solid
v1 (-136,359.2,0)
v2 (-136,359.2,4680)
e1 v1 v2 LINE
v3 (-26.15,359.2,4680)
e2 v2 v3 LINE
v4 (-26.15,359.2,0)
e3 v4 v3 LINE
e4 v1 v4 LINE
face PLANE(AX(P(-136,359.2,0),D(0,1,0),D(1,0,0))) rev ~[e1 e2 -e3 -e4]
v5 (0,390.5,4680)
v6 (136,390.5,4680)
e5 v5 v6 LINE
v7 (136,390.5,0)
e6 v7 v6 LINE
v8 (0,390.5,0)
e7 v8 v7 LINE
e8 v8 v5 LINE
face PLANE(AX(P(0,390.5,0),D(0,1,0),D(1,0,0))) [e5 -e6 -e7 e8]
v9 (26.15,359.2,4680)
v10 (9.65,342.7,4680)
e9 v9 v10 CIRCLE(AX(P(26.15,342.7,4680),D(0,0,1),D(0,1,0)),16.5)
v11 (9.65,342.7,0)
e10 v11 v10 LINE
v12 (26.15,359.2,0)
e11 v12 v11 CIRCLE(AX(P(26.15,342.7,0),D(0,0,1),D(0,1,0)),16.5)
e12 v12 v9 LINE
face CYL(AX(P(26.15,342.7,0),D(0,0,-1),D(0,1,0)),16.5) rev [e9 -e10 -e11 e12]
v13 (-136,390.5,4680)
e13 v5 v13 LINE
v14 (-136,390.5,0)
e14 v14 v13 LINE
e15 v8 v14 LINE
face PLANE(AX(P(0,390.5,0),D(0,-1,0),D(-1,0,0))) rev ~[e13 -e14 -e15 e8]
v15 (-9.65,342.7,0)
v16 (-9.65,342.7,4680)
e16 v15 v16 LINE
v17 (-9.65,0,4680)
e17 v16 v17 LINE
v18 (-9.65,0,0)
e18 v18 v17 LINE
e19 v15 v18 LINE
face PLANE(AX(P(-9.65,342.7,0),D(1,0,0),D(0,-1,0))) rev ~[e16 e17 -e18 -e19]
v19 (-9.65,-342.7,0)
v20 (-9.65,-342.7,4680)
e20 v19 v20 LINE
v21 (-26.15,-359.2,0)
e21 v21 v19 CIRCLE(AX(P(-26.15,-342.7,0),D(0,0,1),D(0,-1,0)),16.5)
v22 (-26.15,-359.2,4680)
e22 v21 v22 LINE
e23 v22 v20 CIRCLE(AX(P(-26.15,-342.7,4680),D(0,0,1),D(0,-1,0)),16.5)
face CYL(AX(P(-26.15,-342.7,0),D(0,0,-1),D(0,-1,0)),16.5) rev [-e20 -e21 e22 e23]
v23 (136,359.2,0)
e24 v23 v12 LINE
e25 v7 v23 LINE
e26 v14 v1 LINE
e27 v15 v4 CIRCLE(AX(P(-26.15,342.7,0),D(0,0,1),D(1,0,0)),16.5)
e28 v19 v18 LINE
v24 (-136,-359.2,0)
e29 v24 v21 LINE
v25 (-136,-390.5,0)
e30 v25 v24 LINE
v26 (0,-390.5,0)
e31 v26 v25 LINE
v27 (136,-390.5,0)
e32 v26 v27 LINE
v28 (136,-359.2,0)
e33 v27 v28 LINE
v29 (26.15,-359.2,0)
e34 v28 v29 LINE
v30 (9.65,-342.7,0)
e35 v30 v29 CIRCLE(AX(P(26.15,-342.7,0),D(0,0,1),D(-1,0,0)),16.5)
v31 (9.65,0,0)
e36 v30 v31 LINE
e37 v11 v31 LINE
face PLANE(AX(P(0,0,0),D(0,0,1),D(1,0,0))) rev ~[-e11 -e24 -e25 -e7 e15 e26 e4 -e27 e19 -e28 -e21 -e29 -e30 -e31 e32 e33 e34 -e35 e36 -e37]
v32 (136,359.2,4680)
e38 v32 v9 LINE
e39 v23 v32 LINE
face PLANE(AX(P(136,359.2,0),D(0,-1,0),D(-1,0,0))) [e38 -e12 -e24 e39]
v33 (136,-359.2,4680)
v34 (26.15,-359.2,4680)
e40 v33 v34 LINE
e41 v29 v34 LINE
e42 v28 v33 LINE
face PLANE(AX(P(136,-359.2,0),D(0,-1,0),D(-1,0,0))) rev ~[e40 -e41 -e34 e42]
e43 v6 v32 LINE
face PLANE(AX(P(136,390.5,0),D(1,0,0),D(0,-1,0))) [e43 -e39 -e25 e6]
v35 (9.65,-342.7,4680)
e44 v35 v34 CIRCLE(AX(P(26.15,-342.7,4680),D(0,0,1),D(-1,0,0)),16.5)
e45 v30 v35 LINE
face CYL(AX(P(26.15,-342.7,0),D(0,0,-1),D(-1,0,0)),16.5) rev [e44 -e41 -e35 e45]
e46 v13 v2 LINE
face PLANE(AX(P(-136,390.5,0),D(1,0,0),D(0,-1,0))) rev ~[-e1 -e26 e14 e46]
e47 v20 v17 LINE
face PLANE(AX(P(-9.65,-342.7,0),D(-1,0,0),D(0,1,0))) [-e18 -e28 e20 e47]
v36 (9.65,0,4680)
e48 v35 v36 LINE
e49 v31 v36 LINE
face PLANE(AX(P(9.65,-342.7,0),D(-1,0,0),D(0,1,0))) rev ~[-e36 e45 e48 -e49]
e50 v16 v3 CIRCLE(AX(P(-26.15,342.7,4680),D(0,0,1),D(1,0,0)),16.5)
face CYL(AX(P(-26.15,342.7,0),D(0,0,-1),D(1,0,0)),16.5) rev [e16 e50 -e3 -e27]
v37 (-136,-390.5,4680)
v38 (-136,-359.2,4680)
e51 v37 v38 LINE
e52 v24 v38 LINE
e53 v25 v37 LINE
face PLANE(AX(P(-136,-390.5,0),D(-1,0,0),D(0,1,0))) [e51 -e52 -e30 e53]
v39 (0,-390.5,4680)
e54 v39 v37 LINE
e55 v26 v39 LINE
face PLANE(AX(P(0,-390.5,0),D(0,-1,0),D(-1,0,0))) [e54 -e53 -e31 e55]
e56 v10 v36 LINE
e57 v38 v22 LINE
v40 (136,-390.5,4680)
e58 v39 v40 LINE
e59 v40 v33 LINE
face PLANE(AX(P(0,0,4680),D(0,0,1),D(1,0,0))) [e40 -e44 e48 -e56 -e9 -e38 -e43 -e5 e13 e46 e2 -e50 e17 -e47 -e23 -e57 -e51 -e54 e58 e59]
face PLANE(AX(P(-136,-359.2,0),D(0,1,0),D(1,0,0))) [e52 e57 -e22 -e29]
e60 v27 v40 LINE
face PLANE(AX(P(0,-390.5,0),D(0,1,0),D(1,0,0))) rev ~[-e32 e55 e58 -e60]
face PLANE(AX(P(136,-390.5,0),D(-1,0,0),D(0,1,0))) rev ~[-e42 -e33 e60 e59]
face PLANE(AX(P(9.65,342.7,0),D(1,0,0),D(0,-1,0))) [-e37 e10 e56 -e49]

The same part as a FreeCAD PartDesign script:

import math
import FreeCAD as App
import Part
import Sketcher

doc = App.newDocument("Part")
params = doc.addObject("Spreadsheet::Sheet", "Params")
for row, (alias, value) in enumerate([
    ("sketch1_radius", "16.5 mm"),
    ("sketch1_height", "31.3 mm"),
    ("pad1_length", "4680 mm"),
], start=1):
    params.set(f"A{row}", alias)
    params.set(f"B{row}", "=" + value)
    params.setAlias(f"B{row}", alias)

body = doc.addObject("PartDesign::Body", "Body")

sketch1 = doc.addObject("Sketcher::SketchObject", "Sketch")
body.addObject(sketch1)
sketch1.AttachmentSupport = (doc.XY_Plane, [""])
sketch1.MapMode = "FlatFace"
sketch1.addGeometry(Part.LineSegment(App.Vector(-136, -359.2, 0), App.Vector(-136, -390.5, 0)), False)
sketch1.addGeometry(Part.LineSegment(App.Vector(-136, -390.5, 0), App.Vector(136, -390.5, 0)), False)
sketch1.addGeometry(Part.LineSegment(App.Vector(136, -390.5, 0), App.Vector(136, -359.2, 0)), False)
sketch1.addGeometry(Part.LineSegment(App.Vector(136, -359.2, 0), App.Vector(26.15, -359.2, 0)), False)
sketch1.addGeometry(Part.ArcOfCircle(Part.Circle(App.Vector(26.15, -342.7, 0), App.Vector(0, 0, 1), 16.5), math.radians(180), math.radians(270)), False)
sketch1.addGeometry(Part.LineSegment(App.Vector(9.65, -342.7, 0), App.Vector(9.65, 342.7, 0)), False)
sketch1.addGeometry(Part.ArcOfCircle(Part.Circle(App.Vector(26.15, 342.7, 0), App.Vector(0, 0, 1), 16.5), math.radians(90), math.radians(180)), False)
sketch1.addGeometry(Part.LineSegment(App.Vector(26.15, 359.2, 0), App.Vector(136, 359.2, 0)), False)
sketch1.addGeometry(Part.LineSegment(App.Vector(136, 359.2, 0), App.Vector(136, 390.5, 0)), False)
sketch1.addGeometry(Part.LineSegment(App.Vector(136, 390.5, 0), App.Vector(-136, 390.5, 0)), False)
sketch1.addGeometry(Part.LineSegment(App.Vector(-136, 390.5, 0), App.Vector(-136, 359.2, 0)), False)
sketch1.addGeometry(Part.LineSegment(App.Vector(-136, 359.2, 0), App.Vector(-26.15, 359.2, 0)), False)
sketch1.addGeometry(Part.ArcOfCircle(Part.Circle(App.Vector(-26.15, 342.7, 0), App.Vector(0, 0, 1), 16.5), math.radians(0), math.radians(90)), False)
sketch1.addGeometry(Part.LineSegment(App.Vector(-9.65, 342.7, 0), App.Vector(-9.65, -342.7, 0)), False)
sketch1.addGeometry(Part.ArcOfCircle(Part.Circle(App.Vector(-26.15, -342.7, 0), App.Vector(0, 0, 1), 16.5), math.radians(-90), math.radians(0)), False)
sketch1.addGeometry(Part.LineSegment(App.Vector(-26.15, -359.2, 0), App.Vector(-136, -359.2, 0)), False)
sketch1.addConstraint(Sketcher.Constraint("Coincident", 0, 2, 1, 1))
sketch1.addConstraint(Sketcher.Constraint("Coincident", 1, 2, 2, 1))
sketch1.addConstraint(Sketcher.Constraint("Coincident", 2, 2, 3, 1))
sketch1.addConstraint(Sketcher.Constraint("Tangent", 3, 2, 4, 2))
sketch1.addConstraint(Sketcher.Constraint("Tangent", 4, 1, 5, 1))
sketch1.addConstraint(Sketcher.Constraint("Tangent", 5, 2, 6, 2))
sketch1.addConstraint(Sketcher.Constraint("Tangent", 6, 1, 7, 1))
sketch1.addConstraint(Sketcher.Constraint("Coincident", 7, 2, 8, 1))
sketch1.addConstraint(Sketcher.Constraint("Coincident", 8, 2, 9, 1))
sketch1.addConstraint(Sketcher.Constraint("Coincident", 9, 2, 10, 1))
sketch1.addConstraint(Sketcher.Constraint("Coincident", 10, 2, 11, 1))
sketch1.addConstraint(Sketcher.Constraint("Tangent", 11, 2, 12, 2))
sketch1.addConstraint(Sketcher.Constraint("Tangent", 12, 1, 13, 1))
sketch1.addConstraint(Sketcher.Constraint("Tangent", 13, 2, 14, 2))
sketch1.addConstraint(Sketcher.Constraint("Tangent", 14, 1, 15, 1))
sketch1.addConstraint(Sketcher.Constraint("Coincident", 15, 2, 0, 1))
sketch1.addConstraint(Sketcher.Constraint("Vertical", 0))
sketch1.addConstraint(Sketcher.Constraint("Horizontal", 1))
sketch1.addConstraint(Sketcher.Constraint("Vertical", 2))
sketch1.addConstraint(Sketcher.Constraint("Horizontal", 3))
sketch1.addConstraint(Sketcher.Constraint("Vertical", 5))
sketch1.addConstraint(Sketcher.Constraint("Horizontal", 7))
sketch1.addConstraint(Sketcher.Constraint("Vertical", 8))
sketch1.addConstraint(Sketcher.Constraint("Horizontal", 9))
sketch1.addConstraint(Sketcher.Constraint("Vertical", 10))
sketch1.addConstraint(Sketcher.Constraint("Horizontal", 11))
sketch1.addConstraint(Sketcher.Constraint("Vertical", 13))
sketch1.addConstraint(Sketcher.Constraint("Horizontal", 15))
sketch1.addConstraint(Sketcher.Constraint("Equal", 4, 6))
sketch1.addConstraint(Sketcher.Constraint("Equal", 6, 12))
sketch1.addConstraint(Sketcher.Constraint("Equal", 12, 14))
sketch1.addConstraint(Sketcher.Constraint("Symmetric", 4, 3, 12, 3, -1, 1))
sketch1.addConstraint(Sketcher.Constraint("Symmetric", 0, 2, 8, 2, -1, 1))
sketch1.addConstraint(Sketcher.Constraint("Symmetric", 7, 2, 10, 2, -2))
sketch1.addConstraint(Sketcher.Constraint("Symmetric", 2, 2, 15, 2, -2))
sketch1.addConstraint(Sketcher.Constraint("Radius", 4, 16.5))
sketch1.addConstraint(Sketcher.Constraint("DistanceY", 0, 2, 0, 1, 31.3))
sketch1.addConstraint(Sketcher.Constraint("DistanceX", 0, 2, -1, 1, 136.0))
sketch1.addConstraint(Sketcher.Constraint("DistanceY", 0, 2, -1, 1, 390.5))
sketch1.addConstraint(Sketcher.Constraint("DistanceX", -1, 1, 4, 1, 9.65))
sketch1.setExpression("Constraints[35]", "Params.sketch1_radius")
sketch1.setExpression("Constraints[36]", "Params.sketch1_height")
pad1 = doc.addObject("PartDesign::Pad", "Pad")
body.addObject(pad1)
pad1.Profile = sketch1
pad1.setExpression("Length", "Params.pad1_length")

doc.recompute()
